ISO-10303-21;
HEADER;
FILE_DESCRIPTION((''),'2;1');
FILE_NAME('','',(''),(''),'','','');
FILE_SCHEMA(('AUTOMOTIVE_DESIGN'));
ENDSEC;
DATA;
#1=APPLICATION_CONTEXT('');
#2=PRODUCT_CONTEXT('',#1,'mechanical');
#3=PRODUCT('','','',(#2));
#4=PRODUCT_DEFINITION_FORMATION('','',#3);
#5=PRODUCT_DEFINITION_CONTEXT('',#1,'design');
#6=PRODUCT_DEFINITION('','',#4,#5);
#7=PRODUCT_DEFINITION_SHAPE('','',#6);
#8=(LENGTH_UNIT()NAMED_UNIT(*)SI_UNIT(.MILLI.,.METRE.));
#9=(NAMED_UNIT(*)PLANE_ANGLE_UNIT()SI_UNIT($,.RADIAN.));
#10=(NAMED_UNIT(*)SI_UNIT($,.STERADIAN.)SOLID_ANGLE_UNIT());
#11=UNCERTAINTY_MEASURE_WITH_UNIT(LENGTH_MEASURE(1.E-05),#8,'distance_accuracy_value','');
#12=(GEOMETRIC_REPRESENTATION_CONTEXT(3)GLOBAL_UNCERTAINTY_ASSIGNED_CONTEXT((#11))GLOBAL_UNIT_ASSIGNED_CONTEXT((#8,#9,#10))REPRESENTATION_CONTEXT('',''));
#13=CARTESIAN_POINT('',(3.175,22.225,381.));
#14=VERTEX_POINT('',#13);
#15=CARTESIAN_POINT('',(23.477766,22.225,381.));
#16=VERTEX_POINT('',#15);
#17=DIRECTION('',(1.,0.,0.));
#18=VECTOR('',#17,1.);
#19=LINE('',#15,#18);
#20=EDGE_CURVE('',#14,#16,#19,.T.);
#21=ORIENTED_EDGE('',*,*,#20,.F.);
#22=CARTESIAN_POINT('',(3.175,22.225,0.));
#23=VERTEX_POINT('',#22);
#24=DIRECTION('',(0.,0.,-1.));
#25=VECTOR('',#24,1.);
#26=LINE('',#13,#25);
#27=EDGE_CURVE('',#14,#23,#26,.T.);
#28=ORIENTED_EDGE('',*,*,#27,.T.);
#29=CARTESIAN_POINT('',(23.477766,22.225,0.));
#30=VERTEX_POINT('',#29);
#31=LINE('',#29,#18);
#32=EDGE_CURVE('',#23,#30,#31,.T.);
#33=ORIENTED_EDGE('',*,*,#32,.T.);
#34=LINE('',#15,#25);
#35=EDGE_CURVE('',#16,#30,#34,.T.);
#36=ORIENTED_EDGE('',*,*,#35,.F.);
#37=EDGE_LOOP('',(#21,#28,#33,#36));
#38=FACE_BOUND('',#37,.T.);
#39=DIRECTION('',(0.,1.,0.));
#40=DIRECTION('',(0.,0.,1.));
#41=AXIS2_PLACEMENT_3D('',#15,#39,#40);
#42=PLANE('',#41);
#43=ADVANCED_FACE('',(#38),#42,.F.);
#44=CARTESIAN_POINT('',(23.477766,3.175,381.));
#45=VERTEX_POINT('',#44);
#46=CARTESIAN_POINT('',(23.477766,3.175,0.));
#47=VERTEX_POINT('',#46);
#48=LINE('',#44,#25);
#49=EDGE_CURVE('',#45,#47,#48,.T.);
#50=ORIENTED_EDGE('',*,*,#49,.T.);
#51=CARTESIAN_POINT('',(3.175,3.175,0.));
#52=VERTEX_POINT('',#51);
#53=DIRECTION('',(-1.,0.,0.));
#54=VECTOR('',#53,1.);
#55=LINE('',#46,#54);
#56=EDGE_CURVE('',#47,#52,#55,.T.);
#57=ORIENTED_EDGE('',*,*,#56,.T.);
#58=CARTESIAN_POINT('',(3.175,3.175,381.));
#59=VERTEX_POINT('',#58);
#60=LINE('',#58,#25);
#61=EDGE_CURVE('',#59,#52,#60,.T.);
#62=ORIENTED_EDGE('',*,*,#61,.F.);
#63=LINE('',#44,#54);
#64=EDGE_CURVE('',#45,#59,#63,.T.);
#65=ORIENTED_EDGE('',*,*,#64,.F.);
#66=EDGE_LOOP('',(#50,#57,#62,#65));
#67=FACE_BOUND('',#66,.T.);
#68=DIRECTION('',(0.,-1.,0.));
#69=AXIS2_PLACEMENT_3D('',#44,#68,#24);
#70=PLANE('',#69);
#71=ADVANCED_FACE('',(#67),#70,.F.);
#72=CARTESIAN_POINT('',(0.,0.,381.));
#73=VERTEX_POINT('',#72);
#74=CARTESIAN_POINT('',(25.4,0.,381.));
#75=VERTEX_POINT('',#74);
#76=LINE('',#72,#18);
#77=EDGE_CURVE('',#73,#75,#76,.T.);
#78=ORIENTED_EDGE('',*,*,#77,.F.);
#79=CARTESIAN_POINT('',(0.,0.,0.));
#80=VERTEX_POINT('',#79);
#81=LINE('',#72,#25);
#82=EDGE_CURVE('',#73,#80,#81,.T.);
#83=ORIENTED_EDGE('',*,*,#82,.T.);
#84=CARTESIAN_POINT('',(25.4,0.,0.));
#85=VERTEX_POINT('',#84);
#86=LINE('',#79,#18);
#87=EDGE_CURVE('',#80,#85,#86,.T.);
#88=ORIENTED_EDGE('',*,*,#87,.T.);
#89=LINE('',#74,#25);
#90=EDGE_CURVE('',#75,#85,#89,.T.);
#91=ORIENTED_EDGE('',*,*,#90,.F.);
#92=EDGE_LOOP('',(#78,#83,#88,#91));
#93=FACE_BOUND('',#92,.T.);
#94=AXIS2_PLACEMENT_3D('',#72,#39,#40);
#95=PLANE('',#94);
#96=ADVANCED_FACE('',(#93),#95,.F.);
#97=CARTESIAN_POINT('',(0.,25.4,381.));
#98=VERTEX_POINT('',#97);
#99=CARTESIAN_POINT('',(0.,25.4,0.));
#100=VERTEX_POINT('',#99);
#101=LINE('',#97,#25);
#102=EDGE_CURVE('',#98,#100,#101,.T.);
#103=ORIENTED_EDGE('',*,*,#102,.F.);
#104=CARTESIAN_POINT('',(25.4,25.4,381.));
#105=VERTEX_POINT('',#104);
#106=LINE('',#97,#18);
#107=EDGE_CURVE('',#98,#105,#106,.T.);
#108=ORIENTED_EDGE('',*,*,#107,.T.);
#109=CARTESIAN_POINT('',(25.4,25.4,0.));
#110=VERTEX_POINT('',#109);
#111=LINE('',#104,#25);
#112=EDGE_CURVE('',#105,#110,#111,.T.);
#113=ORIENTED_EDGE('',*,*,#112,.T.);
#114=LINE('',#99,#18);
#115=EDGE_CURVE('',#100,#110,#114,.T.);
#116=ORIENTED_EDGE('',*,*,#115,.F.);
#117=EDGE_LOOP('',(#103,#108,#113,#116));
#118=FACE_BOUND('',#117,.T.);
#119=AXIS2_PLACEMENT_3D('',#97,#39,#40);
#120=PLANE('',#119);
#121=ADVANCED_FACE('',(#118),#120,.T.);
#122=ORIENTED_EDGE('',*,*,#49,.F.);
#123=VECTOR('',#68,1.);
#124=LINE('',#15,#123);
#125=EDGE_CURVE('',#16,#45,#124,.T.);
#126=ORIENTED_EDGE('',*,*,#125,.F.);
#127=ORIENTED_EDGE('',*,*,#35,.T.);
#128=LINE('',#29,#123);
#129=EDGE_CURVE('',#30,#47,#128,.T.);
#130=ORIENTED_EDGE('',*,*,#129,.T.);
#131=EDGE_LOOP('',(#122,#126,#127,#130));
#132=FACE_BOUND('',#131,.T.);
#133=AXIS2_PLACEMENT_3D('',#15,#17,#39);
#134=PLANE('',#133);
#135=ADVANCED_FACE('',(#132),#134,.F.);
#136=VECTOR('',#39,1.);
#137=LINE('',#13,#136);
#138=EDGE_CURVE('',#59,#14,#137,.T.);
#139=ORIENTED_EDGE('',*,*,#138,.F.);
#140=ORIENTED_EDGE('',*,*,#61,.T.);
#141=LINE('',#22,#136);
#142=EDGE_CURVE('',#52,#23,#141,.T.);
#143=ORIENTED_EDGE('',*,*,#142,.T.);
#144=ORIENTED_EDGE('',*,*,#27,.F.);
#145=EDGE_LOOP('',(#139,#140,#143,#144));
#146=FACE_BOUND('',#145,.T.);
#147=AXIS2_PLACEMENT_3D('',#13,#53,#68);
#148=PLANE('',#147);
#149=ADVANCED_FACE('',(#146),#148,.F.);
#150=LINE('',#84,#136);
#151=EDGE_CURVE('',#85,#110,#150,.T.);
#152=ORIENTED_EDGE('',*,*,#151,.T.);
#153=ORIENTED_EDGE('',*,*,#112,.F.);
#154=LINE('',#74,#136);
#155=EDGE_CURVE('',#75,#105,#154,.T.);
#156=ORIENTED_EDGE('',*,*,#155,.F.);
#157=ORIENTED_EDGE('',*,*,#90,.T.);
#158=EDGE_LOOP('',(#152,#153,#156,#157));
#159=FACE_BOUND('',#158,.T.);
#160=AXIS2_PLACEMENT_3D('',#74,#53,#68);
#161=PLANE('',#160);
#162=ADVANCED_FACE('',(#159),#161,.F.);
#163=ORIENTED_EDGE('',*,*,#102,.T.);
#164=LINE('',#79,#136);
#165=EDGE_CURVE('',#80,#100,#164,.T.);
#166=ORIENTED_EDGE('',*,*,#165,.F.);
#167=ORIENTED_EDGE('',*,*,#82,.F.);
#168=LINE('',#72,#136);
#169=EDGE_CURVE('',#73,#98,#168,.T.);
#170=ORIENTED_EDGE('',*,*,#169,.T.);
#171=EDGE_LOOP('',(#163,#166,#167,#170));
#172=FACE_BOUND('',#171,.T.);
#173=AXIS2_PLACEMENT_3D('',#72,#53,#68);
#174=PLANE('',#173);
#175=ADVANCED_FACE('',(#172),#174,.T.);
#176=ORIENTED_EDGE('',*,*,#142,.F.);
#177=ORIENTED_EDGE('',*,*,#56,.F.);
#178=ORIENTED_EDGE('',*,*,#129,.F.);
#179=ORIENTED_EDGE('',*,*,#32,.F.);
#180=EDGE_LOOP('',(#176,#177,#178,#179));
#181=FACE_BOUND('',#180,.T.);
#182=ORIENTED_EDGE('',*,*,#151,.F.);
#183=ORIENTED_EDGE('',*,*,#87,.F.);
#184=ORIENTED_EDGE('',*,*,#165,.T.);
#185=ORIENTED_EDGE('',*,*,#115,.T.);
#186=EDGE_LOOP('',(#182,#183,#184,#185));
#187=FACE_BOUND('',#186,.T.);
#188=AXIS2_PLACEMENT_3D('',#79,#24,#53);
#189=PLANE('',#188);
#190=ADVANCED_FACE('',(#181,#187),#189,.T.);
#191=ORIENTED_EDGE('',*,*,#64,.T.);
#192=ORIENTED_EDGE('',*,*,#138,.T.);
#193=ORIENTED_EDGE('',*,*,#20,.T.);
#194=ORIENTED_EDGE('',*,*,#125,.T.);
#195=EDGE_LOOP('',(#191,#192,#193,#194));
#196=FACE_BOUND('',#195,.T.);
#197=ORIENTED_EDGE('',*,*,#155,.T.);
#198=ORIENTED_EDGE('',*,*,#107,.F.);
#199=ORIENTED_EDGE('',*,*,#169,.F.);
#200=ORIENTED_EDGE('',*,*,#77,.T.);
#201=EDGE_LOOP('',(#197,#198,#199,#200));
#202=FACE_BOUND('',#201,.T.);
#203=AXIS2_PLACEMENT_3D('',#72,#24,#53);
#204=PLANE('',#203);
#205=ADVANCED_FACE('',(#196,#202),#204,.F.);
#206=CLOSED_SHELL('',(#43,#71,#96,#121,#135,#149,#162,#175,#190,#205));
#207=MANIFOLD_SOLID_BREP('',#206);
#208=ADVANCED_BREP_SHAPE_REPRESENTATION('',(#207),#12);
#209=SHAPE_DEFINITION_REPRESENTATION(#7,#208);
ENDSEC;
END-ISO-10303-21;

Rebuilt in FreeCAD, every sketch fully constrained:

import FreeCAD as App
import Part
import Sketcher

V = App.Vector
Q = App.Units.Quantity


def add_polygon(sketch, points):
    """Adds a closed chain of lines whose ends are joined by coincident constraints."""
    first, n = sketch.GeometryCount, len(points)
    for a, b in zip(points, points[1:] + points[:1]):
        sketch.addGeometry(Part.LineSegment(App.Vector(*a, 0), App.Vector(*b, 0)), False)
    for i in range(n):
        sketch.addConstraint(Sketcher.Constraint("Coincident", first + i, 2, first + (i + 1) % n, 1))

doc = App.newDocument("Part")
body = doc.addObject("PartDesign::Body", "Body")

# Sketch on XY plane
sketch1 = body.newObject("Sketcher::SketchObject", "Sketch")
sketch1.AttachmentSupport = (doc.getObject("XY_Plane"), [""])
sketch1.MapMode = "FlatFace"
add_polygon(sketch1, [(0, 25), (0, 0), (25, 0), (25, 25)])  # lines 0-3
sketch1.addConstraint(Sketcher.Constraint("Vertical", 0))
sketch1.addConstraint(Sketcher.Constraint("Horizontal", 1))
sketch1.addConstraint(Sketcher.Constraint("Vertical", 2))
sketch1.addConstraint(Sketcher.Constraint("Horizontal", 3))
sketch1.addConstraint(Sketcher.Constraint("Coincident", 0, 2, -1, 1))
sketch1.addConstraint(Sketcher.Constraint("Equal", 3, 0))
sketch1.addConstraint(Sketcher.Constraint("DistanceX", 1, 1, 1, 2, Q("1 in")))
pad1 = body.newObject("PartDesign::Pad", "Pad")
pad1.Profile = sketch1
pad1.Length = Q("15 in")

# Sketch on XY plane
sketch2 = body.newObject("Sketcher::SketchObject", "Sketch001")
sketch2.AttachmentSupport = (doc.getObject("XY_Plane"), [""])
sketch2.MapMode = "FlatFace"
add_polygon(sketch2, [(23, 22), (23, 3), (3, 3), (3, 22)])  # lines 0-3
sketch2.addConstraint(Sketcher.Constraint("Vertical", 0))
sketch2.addConstraint(Sketcher.Constraint("Horizontal", 1))
sketch2.addConstraint(Sketcher.Constraint("Vertical", 2))
sketch2.addConstraint(Sketcher.Constraint("Horizontal", 3))
sketch2.addConstraint(Sketcher.Constraint("DistanceY", 0, 2, 0, 1, Q("0.75 in")))
sketch2.addConstraint(Sketcher.Constraint("DistanceY", -1, 1, 0, 2, Q("0.125 in")))
sketch2.addConstraint(Sketcher.Constraint("DistanceX", -1, 1, 1, 2, Q("0.125 in")))
sketch2.addConstraint(Sketcher.Constraint("DistanceX", 1, 2, 1, 1, 20.302766))
pocket1 = body.newObject("PartDesign::Pocket", "Pocket")
pocket1.Profile = sketch2
pocket1.Type = "ThroughAll"
pocket1.Reversed = True

doc.recompute()
